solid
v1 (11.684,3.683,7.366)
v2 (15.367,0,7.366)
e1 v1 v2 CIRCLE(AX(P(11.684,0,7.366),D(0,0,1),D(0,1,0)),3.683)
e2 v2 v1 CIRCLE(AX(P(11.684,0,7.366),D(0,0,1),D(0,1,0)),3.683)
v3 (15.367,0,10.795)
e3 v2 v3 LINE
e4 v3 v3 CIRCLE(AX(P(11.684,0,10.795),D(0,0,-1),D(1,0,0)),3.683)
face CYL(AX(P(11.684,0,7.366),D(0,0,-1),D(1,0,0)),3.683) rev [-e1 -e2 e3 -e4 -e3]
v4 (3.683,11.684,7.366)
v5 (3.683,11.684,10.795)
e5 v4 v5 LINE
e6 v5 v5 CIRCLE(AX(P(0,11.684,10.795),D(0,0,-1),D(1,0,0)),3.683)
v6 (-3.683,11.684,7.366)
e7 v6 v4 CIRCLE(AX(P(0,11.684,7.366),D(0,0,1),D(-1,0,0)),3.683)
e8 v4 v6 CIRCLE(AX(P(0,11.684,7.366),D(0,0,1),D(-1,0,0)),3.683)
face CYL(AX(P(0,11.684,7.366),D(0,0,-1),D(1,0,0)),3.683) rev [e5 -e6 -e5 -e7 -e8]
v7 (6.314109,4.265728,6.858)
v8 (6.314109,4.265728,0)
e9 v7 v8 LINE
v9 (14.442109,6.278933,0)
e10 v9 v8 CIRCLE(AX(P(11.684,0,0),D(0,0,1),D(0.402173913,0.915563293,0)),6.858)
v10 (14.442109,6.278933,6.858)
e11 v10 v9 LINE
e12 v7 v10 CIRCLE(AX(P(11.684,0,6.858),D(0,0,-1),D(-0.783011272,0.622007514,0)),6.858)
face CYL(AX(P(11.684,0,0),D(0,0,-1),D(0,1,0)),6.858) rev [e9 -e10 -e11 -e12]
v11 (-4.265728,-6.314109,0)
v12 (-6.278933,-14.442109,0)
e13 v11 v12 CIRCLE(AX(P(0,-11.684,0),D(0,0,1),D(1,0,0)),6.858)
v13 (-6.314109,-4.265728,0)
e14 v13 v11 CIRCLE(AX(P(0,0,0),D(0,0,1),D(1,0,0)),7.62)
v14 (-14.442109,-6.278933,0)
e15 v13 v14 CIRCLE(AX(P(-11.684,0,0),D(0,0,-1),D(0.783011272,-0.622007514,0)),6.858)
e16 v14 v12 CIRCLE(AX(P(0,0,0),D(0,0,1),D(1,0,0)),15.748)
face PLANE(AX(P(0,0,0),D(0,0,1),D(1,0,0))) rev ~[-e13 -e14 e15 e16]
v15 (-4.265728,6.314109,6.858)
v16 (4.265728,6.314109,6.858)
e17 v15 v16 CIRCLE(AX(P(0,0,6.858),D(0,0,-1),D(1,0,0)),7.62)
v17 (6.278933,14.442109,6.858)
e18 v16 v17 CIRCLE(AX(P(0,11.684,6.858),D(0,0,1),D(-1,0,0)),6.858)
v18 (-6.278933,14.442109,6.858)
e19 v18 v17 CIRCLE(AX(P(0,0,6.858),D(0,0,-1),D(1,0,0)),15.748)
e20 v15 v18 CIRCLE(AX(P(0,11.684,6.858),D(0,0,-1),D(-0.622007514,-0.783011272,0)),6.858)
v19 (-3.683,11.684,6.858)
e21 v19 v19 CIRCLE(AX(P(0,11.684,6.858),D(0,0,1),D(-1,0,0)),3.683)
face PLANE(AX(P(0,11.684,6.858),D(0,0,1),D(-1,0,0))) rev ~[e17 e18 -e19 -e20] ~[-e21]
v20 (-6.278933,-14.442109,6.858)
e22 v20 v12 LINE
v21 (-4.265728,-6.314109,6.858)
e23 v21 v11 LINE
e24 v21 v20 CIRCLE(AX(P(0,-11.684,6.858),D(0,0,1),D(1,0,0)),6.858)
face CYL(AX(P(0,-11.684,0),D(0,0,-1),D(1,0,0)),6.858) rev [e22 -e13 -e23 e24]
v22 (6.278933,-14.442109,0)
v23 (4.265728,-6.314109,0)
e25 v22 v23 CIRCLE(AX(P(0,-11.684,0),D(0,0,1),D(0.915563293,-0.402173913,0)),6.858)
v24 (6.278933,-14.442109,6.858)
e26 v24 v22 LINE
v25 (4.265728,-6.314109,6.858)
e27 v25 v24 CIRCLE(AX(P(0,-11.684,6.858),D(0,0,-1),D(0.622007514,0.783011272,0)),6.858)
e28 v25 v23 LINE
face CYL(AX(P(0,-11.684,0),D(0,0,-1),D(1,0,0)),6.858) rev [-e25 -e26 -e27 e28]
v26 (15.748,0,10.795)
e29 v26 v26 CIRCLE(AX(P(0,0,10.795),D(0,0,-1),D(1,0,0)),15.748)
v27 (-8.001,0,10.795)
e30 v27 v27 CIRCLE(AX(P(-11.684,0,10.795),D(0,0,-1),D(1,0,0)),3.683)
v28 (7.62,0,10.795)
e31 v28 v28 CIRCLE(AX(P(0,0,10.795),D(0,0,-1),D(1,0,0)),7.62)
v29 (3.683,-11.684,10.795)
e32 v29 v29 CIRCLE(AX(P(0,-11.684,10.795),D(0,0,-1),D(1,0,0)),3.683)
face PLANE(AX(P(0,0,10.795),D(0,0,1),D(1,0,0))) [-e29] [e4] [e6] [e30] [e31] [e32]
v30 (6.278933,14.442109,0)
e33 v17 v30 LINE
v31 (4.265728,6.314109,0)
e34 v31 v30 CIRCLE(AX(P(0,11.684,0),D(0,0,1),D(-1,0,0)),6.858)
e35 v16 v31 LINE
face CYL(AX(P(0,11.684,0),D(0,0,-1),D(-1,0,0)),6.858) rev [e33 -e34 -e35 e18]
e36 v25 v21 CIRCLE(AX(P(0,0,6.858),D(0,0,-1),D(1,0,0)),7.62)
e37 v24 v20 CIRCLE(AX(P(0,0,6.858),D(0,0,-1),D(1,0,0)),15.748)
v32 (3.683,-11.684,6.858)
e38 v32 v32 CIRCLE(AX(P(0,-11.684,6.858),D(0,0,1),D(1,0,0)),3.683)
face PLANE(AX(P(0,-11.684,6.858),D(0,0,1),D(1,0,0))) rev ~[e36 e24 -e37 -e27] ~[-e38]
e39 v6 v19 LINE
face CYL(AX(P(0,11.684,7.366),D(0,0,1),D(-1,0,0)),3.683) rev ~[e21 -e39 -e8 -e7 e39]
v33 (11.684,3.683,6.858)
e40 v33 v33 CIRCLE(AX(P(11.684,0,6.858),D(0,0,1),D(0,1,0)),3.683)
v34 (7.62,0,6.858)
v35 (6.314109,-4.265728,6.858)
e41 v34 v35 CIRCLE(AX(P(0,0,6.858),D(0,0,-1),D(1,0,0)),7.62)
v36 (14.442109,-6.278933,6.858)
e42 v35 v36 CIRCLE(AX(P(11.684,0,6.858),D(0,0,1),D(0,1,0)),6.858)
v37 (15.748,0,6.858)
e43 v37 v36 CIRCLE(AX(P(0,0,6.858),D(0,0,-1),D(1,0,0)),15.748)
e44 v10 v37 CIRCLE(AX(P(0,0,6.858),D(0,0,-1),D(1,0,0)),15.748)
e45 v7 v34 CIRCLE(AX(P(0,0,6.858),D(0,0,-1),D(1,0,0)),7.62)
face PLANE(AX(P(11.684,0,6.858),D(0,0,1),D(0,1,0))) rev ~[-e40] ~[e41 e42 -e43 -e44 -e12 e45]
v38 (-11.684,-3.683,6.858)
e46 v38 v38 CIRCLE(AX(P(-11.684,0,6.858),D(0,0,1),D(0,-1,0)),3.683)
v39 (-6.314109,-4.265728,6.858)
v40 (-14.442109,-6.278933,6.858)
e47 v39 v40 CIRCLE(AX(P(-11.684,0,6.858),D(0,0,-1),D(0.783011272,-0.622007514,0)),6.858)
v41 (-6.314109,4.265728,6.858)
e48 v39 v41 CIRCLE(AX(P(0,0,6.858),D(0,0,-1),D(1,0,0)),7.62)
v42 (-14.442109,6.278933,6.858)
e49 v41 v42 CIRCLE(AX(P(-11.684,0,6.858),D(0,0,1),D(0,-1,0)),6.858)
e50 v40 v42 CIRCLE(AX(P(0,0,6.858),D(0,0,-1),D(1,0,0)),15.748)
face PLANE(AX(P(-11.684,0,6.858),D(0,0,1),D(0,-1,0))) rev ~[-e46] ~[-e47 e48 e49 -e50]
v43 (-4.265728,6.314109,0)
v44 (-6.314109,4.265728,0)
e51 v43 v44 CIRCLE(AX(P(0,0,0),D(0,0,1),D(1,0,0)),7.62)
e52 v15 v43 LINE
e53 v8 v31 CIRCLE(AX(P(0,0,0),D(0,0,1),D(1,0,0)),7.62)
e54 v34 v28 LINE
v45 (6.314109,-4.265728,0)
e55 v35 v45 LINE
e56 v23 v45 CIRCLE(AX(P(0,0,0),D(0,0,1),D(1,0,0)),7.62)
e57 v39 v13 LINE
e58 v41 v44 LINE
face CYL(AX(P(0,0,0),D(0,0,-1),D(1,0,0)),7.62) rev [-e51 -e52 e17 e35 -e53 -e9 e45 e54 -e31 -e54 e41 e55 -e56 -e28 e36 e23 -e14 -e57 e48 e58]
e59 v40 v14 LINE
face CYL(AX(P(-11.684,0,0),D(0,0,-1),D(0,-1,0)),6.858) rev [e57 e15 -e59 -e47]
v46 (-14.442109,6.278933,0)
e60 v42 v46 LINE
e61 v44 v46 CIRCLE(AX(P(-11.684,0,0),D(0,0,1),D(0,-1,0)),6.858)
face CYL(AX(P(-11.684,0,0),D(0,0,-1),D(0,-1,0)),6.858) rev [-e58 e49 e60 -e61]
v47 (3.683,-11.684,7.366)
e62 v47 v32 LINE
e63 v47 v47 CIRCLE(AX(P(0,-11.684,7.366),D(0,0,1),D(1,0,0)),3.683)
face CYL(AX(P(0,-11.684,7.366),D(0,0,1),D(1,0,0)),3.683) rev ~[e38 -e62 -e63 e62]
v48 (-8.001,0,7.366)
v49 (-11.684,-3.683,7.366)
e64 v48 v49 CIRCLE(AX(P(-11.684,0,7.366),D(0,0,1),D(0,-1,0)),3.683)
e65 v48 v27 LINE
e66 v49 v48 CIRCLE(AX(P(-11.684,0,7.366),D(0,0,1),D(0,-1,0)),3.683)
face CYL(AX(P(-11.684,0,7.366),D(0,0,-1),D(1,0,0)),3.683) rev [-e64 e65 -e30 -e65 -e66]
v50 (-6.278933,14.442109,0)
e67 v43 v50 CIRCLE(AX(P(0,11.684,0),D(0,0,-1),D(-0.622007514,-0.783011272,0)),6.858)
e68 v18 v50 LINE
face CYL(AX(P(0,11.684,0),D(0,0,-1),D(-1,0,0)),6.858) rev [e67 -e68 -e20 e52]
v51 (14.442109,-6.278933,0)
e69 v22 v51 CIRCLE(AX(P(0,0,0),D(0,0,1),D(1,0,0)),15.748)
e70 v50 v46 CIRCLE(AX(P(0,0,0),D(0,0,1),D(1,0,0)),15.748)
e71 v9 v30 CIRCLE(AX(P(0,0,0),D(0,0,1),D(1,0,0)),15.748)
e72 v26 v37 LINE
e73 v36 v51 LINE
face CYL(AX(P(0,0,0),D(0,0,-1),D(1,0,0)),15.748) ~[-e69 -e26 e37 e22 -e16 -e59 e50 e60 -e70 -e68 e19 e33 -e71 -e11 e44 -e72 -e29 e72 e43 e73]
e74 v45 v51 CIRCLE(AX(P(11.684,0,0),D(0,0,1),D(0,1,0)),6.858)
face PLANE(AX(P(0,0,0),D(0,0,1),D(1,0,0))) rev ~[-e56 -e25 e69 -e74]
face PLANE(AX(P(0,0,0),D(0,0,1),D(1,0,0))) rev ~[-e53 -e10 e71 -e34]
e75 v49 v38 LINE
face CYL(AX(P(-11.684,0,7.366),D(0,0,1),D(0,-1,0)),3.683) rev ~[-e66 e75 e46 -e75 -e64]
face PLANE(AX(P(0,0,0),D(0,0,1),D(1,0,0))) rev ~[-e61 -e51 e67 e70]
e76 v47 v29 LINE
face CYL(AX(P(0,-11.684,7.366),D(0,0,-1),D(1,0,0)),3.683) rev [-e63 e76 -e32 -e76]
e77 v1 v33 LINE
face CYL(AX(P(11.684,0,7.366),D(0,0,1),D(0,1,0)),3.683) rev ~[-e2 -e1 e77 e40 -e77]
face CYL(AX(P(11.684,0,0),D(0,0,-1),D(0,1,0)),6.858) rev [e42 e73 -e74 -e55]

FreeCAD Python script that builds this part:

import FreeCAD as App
import Part
import Sketcher

V = App.Vector
Q = App.Units.Quantity

doc = App.newDocument("Part")
body = doc.addObject("PartDesign::Body", "Body")

sketch1 = body.newObject("Sketcher::SketchObject", "Sketch")
sketch1.AttachmentSupport = (doc.getObject("XY_Plane"), [""])
sketch1.MapMode = "FlatFace"
sketch1.addGeometry([
    Part.Circle(V(0, 0, 0), V(0, 0, 1), 15.748),
    Part.Circle(V(0, 0, 0), V(0, 0, 1), 7.62),
], False)
sketch1.addConstraint([
    Sketcher.Constraint("Coincident", 0, 3, -1, 1),
    Sketcher.Constraint("Coincident", 1, 3, -1, 1),
    Sketcher.Constraint("Diameter", 1, Q("0.6 in")),
    Sketcher.Constraint("Diameter", 0, Q("1.24 in")),
])
pad1 = body.newObject("PartDesign::Pad", "Pad")
pad1.Profile = sketch1
pad1.Length = Q("0.29 in")

sketch2 = body.newObject("Sketcher::SketchObject", "Sketch001")
sketch2.AttachmentSupport = (doc.getObject("XY_Plane"), [""])
sketch2.MapMode = "FlatFace"
sketch2.addGeometry(Part.Circle(V(0, -11.684, 0), V(0, 0, 1), 6.858), False)
sketch2.addConstraint([
    Sketcher.Constraint("PointOnObject", 0, 3, -2),
    Sketcher.Constraint("Diameter", 0, Q("0.54 in")),
    Sketcher.Constraint("DistanceY", 0, 3, -1, 1, Q("0.46 in")),
])
pocket1 = body.newObject("PartDesign::Pocket", "Pocket")
pocket1.Profile = sketch2
pocket1.Length = Q("0.27 in")
pocket1.Reversed = True

sketch3 = body.newObject("Sketcher::SketchObject", "Sketch002")
sketch3.AttachmentSupport = (doc.getObject("XY_Plane"), [""])
sketch3.MapMode = "FlatFace"
sketch3.AttachmentOffset = App.Placement(V(0, 0, 0.29 * 25.4), App.Rotation())
sketch3.addGeometry(Part.Circle(V(0, -11.684, 0), V(0, 0, 1), 3.683), False)
sketch3.addConstraint([
    Sketcher.Constraint("PointOnObject", 0, 3, -2),
    Sketcher.Constraint("Diameter", 0, Q("0.29 in")),
    Sketcher.Constraint("DistanceY", 0, 3, -1, 1, Q("0.46 in")),
])
pocket2 = body.newObject("PartDesign::Pocket", "Pocket001")
pocket2.Profile = sketch3
pocket2.Length = Q("0.2771024 in")
doc.recompute()

polarpattern = body.newObject("PartDesign::PolarPattern", "PolarPattern")
polarpattern.Originals = [pocket1, pocket2]
polarpattern.Axis = (doc.getObject("Z_Axis"), [""])
polarpattern.Angle = 360
polarpattern.Occurrences = 4
body.Tip = polarpattern

sketch4 = body.newObject("Sketcher::SketchObject", "Sketch003")
sketch4.AttachmentSupport = (doc.getObject("XY_Plane"), [""])
sketch4.MapMode = "FlatFace"
sketch4.AttachmentOffset = App.Placement(V(0, 0, 0.29 * 25.4), App.Rotation())
sketch4.addGeometry([
    Part.Circle(V(0, 0, 0), V(0, 0, 1), 15.748),
    Part.Circle(V(0, -11.684, 0), V(0, 0, 1), 3.683),
    Part.Circle(V(-11.684, 0, 0), V(0, 0, 1), 3.683),
    Part.Circle(V(0, 0, 0), V(0, 0, 1), 7.62),
    Part.Circle(V(11.684, 0, 0), V(0, 0, 1), 3.683),
    Part.Circle(V(0, 11.684, 0), V(0, 0, 1), 3.683),
], False)
sketch4.addConstraint([
    Sketcher.Constraint("Coincident", 0, 3, -1, 1),
    Sketcher.Constraint("Coincident", 3, 3, -1, 1),
    Sketcher.Constraint("Equal", 1, 2),
    Sketcher.Constraint("Equal", 2, 4),
    Sketcher.Constraint("Equal", 4, 5),
    Sketcher.Constraint("Symmetric", 2, 3, 4, 3, -1, 1),
    Sketcher.Constraint("Symmetric", 1, 3, 5, 3, -1, 1),
    Sketcher.Constraint("PointOnObject", 1, 3, -2),
    Sketcher.Constraint("PointOnObject", 2, 3, -1),
    Sketcher.Constraint("Diameter", 3, Q("0.6 in")),
    Sketcher.Constraint("Diameter", 0, Q("1.24 in")),
    Sketcher.Constraint("Diameter", 1, Q("0.29 in")),
    Sketcher.Constraint("DistanceY", 1, 3, -1, 1, Q("0.46 in")),
    Sketcher.Constraint("DistanceX", 2, 3, -1, 1, Q("0.46 in")),
])
pad2 = body.newObject("PartDesign::Pad", "Pad001")
pad2.Profile = sketch4
pad2.Length = Q("0.385 in")

sketch5 = body.newObject("Sketcher::SketchObject", "Sketch004")
sketch5.AttachmentSupport = (doc.getObject("XY_Plane"), [""])
sketch5.MapMode = "FlatFace"
sketch5.AttachmentOffset = App.Placement(V(0, 0, 0.675 * 25.4), App.Rotation())
sketch5.addGeometry(Part.Circle(V(0, 0, 0), V(0, 0, 1), 19.2555), False)
sketch5.addConstraint([
    Sketcher.Constraint("Coincident", 0, 3, -1, 1),
    Sketcher.Constraint("Diameter", 0, Q("38.511 mm")),
])
pocket3 = body.newObject("PartDesign::Pocket", "Pocket002")
pocket3.Profile = sketch5
pocket3.Length = Q("0.25 in")

doc.recompute()
